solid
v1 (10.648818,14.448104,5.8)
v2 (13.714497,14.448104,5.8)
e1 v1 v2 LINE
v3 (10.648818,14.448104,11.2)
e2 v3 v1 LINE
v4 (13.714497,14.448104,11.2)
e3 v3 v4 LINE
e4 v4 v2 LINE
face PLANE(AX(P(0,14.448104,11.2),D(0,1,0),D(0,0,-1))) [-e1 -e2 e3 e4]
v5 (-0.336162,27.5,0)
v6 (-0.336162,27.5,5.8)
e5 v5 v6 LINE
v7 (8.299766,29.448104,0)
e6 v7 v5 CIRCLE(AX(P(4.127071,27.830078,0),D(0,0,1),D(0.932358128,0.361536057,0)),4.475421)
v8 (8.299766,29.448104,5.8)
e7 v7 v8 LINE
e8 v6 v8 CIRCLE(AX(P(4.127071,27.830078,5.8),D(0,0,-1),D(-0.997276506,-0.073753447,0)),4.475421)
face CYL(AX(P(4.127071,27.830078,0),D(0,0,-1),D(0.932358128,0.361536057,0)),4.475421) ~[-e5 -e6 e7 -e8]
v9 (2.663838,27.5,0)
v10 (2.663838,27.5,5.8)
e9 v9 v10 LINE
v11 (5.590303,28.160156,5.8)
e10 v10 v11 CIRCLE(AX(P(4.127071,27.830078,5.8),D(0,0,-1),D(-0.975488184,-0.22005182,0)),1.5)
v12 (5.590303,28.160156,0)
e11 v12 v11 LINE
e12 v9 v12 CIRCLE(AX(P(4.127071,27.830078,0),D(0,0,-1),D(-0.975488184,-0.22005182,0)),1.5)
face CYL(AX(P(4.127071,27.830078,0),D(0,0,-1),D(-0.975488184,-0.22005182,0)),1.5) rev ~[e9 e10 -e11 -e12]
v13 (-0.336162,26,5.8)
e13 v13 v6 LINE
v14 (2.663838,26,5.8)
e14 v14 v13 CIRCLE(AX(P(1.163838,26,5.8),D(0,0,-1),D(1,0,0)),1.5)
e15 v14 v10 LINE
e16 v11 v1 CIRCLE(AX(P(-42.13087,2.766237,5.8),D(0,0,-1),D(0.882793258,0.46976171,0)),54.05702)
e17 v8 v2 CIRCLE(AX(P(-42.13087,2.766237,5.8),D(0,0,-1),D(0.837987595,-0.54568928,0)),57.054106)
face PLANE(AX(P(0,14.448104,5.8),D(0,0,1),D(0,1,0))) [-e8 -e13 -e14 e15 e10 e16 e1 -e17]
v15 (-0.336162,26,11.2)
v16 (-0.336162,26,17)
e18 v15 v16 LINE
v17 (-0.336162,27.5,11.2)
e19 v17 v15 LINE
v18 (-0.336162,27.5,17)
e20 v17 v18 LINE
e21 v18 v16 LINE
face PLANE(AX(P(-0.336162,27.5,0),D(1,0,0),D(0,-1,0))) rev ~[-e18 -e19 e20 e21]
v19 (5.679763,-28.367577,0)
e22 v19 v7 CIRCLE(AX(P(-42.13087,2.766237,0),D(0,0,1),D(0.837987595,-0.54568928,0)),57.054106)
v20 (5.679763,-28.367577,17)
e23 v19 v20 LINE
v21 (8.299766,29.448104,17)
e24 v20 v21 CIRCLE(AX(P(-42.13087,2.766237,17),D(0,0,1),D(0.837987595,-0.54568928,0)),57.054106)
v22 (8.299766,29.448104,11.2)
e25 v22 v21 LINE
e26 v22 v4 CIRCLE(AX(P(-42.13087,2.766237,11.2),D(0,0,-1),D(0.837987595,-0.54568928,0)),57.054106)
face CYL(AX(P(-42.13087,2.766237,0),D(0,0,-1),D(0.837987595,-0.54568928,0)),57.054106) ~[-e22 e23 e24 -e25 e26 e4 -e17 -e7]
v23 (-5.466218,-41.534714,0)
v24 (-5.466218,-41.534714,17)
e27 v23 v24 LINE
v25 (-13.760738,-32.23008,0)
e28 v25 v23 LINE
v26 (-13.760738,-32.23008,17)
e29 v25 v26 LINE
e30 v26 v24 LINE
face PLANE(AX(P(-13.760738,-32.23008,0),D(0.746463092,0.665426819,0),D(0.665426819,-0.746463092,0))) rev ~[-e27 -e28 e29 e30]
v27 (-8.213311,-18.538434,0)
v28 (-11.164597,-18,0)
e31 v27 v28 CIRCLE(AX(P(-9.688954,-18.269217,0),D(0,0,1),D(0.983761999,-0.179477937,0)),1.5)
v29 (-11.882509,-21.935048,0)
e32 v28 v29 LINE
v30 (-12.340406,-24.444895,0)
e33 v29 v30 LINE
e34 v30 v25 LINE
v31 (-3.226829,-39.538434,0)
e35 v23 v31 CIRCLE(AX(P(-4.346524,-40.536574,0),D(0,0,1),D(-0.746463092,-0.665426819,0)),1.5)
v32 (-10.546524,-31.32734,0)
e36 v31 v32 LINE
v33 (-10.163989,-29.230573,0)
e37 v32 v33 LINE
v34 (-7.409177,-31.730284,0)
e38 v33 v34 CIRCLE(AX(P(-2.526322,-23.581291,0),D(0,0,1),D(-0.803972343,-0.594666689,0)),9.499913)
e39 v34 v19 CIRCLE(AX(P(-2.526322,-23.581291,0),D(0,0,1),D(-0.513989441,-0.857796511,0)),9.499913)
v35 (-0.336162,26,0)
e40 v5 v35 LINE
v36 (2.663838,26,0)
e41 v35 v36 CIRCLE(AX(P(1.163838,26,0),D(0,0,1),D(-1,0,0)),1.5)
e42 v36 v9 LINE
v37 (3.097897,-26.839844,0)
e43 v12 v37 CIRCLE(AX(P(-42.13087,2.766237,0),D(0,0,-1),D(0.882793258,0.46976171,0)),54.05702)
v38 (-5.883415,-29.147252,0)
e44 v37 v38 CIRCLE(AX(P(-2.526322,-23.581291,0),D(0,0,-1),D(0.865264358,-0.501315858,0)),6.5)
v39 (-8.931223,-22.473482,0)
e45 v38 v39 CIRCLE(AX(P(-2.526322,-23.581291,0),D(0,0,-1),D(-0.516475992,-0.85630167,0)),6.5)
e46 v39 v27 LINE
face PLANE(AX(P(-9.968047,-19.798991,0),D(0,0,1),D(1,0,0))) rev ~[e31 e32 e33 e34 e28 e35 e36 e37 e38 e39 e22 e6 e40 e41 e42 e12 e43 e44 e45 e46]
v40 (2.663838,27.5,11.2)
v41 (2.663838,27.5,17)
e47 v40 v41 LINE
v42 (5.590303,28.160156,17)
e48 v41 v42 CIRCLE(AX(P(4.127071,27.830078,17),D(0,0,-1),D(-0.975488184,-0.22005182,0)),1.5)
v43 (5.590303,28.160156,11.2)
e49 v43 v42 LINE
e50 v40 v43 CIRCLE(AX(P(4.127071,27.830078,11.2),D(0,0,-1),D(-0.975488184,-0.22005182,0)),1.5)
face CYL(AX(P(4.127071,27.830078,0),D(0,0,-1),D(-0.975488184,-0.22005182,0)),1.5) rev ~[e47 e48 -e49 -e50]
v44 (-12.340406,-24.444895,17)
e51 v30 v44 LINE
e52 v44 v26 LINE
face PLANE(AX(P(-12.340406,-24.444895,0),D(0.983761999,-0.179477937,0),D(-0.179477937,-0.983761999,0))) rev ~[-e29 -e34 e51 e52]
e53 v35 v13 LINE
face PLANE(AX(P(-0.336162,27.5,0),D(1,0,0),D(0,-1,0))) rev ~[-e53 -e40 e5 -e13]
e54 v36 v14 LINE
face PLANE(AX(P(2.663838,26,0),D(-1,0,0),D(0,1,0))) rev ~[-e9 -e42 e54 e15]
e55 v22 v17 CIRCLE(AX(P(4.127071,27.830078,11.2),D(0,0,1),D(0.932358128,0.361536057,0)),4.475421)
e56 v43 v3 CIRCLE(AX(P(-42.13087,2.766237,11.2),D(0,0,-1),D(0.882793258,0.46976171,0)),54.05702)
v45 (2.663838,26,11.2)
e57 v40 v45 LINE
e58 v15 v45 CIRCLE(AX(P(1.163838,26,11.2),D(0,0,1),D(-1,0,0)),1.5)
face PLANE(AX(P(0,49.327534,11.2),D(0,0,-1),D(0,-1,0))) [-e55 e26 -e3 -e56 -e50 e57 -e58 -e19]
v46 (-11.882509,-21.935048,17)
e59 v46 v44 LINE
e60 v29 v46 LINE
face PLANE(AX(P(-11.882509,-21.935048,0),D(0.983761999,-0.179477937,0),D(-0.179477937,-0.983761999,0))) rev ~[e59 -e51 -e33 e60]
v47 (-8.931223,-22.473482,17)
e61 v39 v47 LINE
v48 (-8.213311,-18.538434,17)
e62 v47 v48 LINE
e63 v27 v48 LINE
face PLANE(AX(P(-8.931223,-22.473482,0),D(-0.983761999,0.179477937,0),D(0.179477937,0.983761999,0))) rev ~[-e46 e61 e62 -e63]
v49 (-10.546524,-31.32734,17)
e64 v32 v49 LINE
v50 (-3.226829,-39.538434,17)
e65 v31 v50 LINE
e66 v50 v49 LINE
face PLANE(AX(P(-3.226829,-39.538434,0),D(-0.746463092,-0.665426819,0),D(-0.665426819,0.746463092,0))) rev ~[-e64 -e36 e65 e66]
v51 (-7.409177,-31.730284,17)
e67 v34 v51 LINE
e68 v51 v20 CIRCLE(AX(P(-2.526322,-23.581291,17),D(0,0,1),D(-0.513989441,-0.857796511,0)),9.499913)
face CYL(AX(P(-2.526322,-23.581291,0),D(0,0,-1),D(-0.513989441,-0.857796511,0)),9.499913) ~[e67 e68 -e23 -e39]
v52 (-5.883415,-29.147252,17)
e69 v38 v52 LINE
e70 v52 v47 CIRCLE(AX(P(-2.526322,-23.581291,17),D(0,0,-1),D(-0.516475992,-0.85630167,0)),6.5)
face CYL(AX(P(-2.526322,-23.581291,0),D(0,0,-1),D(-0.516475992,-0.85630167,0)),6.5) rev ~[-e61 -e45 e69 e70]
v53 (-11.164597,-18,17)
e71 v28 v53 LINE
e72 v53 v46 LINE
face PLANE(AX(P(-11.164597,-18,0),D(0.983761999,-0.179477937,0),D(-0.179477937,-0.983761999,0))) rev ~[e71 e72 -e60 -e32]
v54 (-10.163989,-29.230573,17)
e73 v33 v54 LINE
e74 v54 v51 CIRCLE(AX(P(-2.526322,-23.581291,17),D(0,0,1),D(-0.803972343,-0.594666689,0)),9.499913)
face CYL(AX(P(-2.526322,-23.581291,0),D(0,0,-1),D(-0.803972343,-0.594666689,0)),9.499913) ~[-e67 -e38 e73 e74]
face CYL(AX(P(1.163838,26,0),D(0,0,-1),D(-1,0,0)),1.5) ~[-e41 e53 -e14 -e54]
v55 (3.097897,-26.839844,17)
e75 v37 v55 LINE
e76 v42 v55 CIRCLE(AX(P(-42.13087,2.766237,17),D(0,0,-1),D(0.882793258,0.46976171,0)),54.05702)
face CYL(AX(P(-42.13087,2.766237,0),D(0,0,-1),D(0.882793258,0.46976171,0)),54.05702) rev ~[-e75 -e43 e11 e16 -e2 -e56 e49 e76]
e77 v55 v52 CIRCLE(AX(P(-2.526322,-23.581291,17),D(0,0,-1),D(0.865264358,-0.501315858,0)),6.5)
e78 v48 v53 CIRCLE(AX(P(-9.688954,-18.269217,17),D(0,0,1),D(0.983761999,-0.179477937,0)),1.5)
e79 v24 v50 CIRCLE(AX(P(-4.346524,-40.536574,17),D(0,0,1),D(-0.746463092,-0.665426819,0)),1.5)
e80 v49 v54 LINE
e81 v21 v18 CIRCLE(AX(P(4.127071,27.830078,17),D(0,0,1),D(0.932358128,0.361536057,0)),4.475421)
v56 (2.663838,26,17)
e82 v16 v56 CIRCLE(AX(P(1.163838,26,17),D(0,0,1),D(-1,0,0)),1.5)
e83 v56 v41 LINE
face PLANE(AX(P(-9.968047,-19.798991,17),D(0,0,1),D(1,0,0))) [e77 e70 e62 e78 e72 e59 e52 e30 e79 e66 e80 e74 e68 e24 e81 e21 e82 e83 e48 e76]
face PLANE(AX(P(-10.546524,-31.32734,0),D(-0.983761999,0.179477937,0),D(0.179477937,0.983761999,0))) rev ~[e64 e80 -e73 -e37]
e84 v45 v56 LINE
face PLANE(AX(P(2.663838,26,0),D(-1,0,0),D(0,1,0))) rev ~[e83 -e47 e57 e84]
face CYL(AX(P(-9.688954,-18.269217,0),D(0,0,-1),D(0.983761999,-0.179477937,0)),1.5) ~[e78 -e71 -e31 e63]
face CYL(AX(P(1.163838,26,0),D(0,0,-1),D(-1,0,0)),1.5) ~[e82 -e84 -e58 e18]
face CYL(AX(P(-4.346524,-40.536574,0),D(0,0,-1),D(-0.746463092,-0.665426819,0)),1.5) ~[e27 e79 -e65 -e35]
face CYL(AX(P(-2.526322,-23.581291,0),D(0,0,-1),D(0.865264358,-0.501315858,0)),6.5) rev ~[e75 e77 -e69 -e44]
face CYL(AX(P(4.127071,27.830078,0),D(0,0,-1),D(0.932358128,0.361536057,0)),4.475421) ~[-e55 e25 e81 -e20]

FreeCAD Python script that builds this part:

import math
import FreeCAD as App
import Part
import Sketcher

doc = App.newDocument("Part")
body = doc.addObject("PartDesign::Body", "Body")

sketch1 = body.newObject("Sketcher::SketchObject", "Sketch")
sketch1.AttachmentSupport = (doc.getObject("XY_Plane"), [""])
sketch1.MapMode = "FlatFace"
sketch1.addGeometry(Part.LineSegment(App.Vector(-8.9, -22.5, 0), App.Vector(-8.2, -18.5, 0)), False)
sketch1.addGeometry(Part.ArcOfCircle(Part.Circle(App.Vector(-9.7, -18.3, 0), App.Vector(0, 0, 1), 1.5), math.radians(-10), math.radians(170)), False)
sketch1.addGeometry(Part.LineSegment(App.Vector(-11.2, -18, 0), App.Vector(-11.9, -21.9, 0)), False)
sketch1.addGeometry(Part.LineSegment(App.Vector(-11.9, -21.9, 0), App.Vector(-12.3, -24.4, 0)), False)
sketch1.addGeometry(Part.LineSegment(App.Vector(-12.3, -24.4, 0), App.Vector(-13.8, -32.2, 0)), False)
sketch1.addGeometry(Part.LineSegment(App.Vector(-13.8, -32.2, 0), App.Vector(-5.5, -41.5, 0)), False)
sketch1.addGeometry(Part.ArcOfCircle(Part.Circle(App.Vector(-4.3, -40.5, 0), App.Vector(0, 0, 1), 1.5), math.radians(-138), math.radians(42)), False)
sketch1.addGeometry(Part.LineSegment(App.Vector(-3.2, -39.5, 0), App.Vector(-10.5, -31.3, 0)), False)
sketch1.addGeometry(Part.LineSegment(App.Vector(-10.5, -31.3, 0), App.Vector(-10.2, -29.2, 0)), False)
sketch1.addGeometry(Part.ArcOfCircle(Part.Circle(App.Vector(-2.5, -23.6, 0), App.Vector(0, 0, 1), 9.5), math.radians(-144), math.radians(-121)), False)
sketch1.addGeometry(Part.ArcOfCircle(Part.Circle(App.Vector(-2.5, -23.6, 0), App.Vector(0, 0, 1), 9.5), math.radians(-121), math.radians(-30)), False)
sketch1.addGeometry(Part.ArcOfCircle(Part.Circle(App.Vector(-42.1, 2.8, 0), App.Vector(0, 0, 1), 57.1), math.radians(-33), math.radians(28)), False)
sketch1.addGeometry(Part.ArcOfCircle(Part.Circle(App.Vector(4.1, 27.8, 0), App.Vector(0, 0, 1), 4.5), math.radians(21), math.radians(184)), False)
sketch1.addGeometry(Part.LineSegment(App.Vector(-0.3, 27.5, 0), App.Vector(-0.3, 26, 0)), False)
sketch1.addGeometry(Part.ArcOfCircle(Part.Circle(App.Vector(1.2, 26, 0), App.Vector(0, 0, 1), 1.5), math.radians(180), math.radians(360)), False)
sketch1.addGeometry(Part.LineSegment(App.Vector(2.7, 26, 0), App.Vector(2.7, 27.5, 0)), False)
sketch1.addGeometry(Part.ArcOfCircle(Part.Circle(App.Vector(4.1, 27.8, 0), App.Vector(0, 0, 1), 1.5), math.radians(13), math.radians(193)), False)
sketch1.addGeometry(Part.ArcOfCircle(Part.Circle(App.Vector(-42.1, 2.8, 0), App.Vector(0, 0, 1), 54.1), math.radians(-33), math.radians(28)), False)
sketch1.addGeometry(Part.ArcOfCircle(Part.Circle(App.Vector(-2.5, -23.6, 0), App.Vector(0, 0, 1), 6.5), math.radians(-121), math.radians(-30)), False)
sketch1.addGeometry(Part.ArcOfCircle(Part.Circle(App.Vector(-2.5, -23.6, 0), App.Vector(0, 0, 1), 6.5), math.radians(170), math.radians(239)), False)
sketch1.addConstraint(Sketcher.Constraint("Tangent", 0, 2, 1, 1))
sketch1.addConstraint(Sketcher.Constraint("Tangent", 1, 2, 2, 1))
sketch1.addConstraint(Sketcher.Constraint("Coincident", 2, 2, 3, 1))
sketch1.addConstraint(Sketcher.Constraint("Coincident", 3, 2, 4, 1))
sketch1.addConstraint(Sketcher.Constraint("Coincident", 4, 2, 5, 1))
sketch1.addConstraint(Sketcher.Constraint("Tangent", 5, 2, 6, 1))
sketch1.addConstraint(Sketcher.Constraint("Tangent", 6, 2, 7, 1))
sketch1.addConstraint(Sketcher.Constraint("Coincident", 7, 2, 8, 1))
sketch1.addConstraint(Sketcher.Constraint("Coincident", 8, 2, 9, 1))
sketch1.addConstraint(Sketcher.Constraint("Tangent", 9, 2, 10, 1))
sketch1.addConstraint(Sketcher.Constraint("Coincident", 10, 2, 11, 1))
sketch1.addConstraint(Sketcher.Constraint("Coincident", 11, 2, 12, 1))
sketch1.addConstraint(Sketcher.Constraint("Coincident", 12, 2, 13, 1))
sketch1.addConstraint(Sketcher.Constraint("Tangent", 13, 2, 14, 1))
sketch1.addConstraint(Sketcher.Constraint("Tangent", 14, 2, 15, 1))
sketch1.addConstraint(Sketcher.Constraint("Coincident", 15, 2, 16, 2))
sketch1.addConstraint(Sketcher.Constraint("Coincident", 16, 1, 17, 2))
sketch1.addConstraint(Sketcher.Constraint("Coincident", 17, 1, 18, 2))
sketch1.addConstraint(Sketcher.Constraint("Tangent", 18, 1, 19, 2))
sketch1.addConstraint(Sketcher.Constraint("Coincident", 19, 1, 0, 1))
sketch1.addConstraint(Sketcher.Constraint("Vertical", 13))
sketch1.addConstraint(Sketcher.Constraint("Vertical", 15))
sketch1.addConstraint(Sketcher.Constraint("Coincident", 16, 3, 12, 3))
sketch1.addConstraint(Sketcher.Constraint("Coincident", 17, 3, 11, 3))
sketch1.addConstraint(Sketcher.Constraint("Coincident", 18, 3, 9, 3))
sketch1.addConstraint(Sketcher.Constraint("Equal", 1, 6))
sketch1.addConstraint(Sketcher.Constraint("Equal", 9, 10))
sketch1.addConstraint(Sketcher.Constraint("Equal", 6, 14))
sketch1.addConstraint(Sketcher.Constraint("Equal", 14, 16))
sketch1.addConstraint(Sketcher.Constraint("Equal", 18, 19))
sketch1.addConstraint(Sketcher.Constraint("Parallel", 0, 2))
sketch1.addConstraint(Sketcher.Constraint("Parallel", 2, 3))
sketch1.addConstraint(Sketcher.Constraint("Parallel", 3, 4))
sketch1.addConstraint(Sketcher.Constraint("Parallel", 5, 7))
sketch1.addConstraint(Sketcher.Constraint("Parallel", 4, 8))
sketch1.addConstraint(Sketcher.Constraint("Horizontal", 12, 2, 15, 2))
sketch1.addConstraint(Sketcher.Constraint("Equal", 0, 2))
sketch1.addConstraint(Sketcher.Constraint("Radius", 1, 1.5))
sketch1.addConstraint(Sketcher.Constraint("Radius", 18, 6.5))
sketch1.addConstraint(Sketcher.Constraint("Distance", 0, 4.0))
sketch1.addConstraint(Sketcher.Constraint("Distance", 7, 11.0))
sketch1.addConstraint(Sketcher.Constraint("DistanceY", 13, 2, 13, 1, 1.5))
sketch1.addConstraint(Sketcher.Constraint("DistanceY", -1, 1, 14, 3, 26.0))
sketch1.addConstraint(Sketcher.Constraint("DistanceY", 1, 2, -1, 1, 18.0))
sketch1.addConstraint(Sketcher.Constraint("DistanceX", 7, 2, 6, 3, 6.2))
sketch1.addConstraint(Sketcher.Constraint("Radius", 12, 4.475421))
sketch1.addConstraint(Sketcher.Constraint("Radius", 17, 54.05702))
sketch1.addConstraint(Sketcher.Constraint("Radius", 9, 9.499913))
sketch1.addConstraint(Sketcher.Constraint("Radius", 11, 57.054106))
sketch1.addConstraint(Sketcher.Constraint("DistanceX", 9, 3, -1, 1, 2.526322))
sketch1.addConstraint(Sketcher.Constraint("DistanceY", 9, 3, -1, 1, 23.581291))
sketch1.addConstraint(Sketcher.Constraint("DistanceX", 11, 3, -1, 1, 42.13087))
sketch1.addConstraint(Sketcher.Constraint("DistanceX", -1, 1, 12, 3, 4.127071))
sketch1.addConstraint(Sketcher.Constraint("DistanceX", 0, 2, -1, 1, 8.213311))
sketch1.addConstraint(Sketcher.Constraint("DistanceX", 4, 2, -1, 1, 13.760738))
sketch1.addConstraint(Sketcher.Constraint("DistanceX", 5, 2, -1, 1, 5.466218))
sketch1.addConstraint(Sketcher.Constraint("DistanceY", 9, 3, 11, 3, 26.347529))
sketch1.addConstraint(Sketcher.Constraint("DistanceX", 3, 2, 1, 2, 1.175809))
sketch1.addConstraint(Sketcher.Constraint("DistanceY", 9, 2, 8, 2, 2.499711))
sketch1.addConstraint(Sketcher.Constraint("DistanceX", 9, 2, 18, 1, 1.525761))
pad1 = body.newObject("PartDesign::Pad", "Pad")
pad1.Profile = sketch1
pad1.Length = 17

sketch2 = body.newObject("Sketcher::SketchObject", "Sketch001")
sketch2.AttachmentSupport = (doc.getObject("YZ_Plane"), [""])
sketch2.MapMode = "FlatFace"
sketch2.addGeometry(Part.LineSegment(App.Vector(49, 11, 0), App.Vector(14, 11, 0)), False)
sketch2.addGeometry(Part.LineSegment(App.Vector(14, 11, 0), App.Vector(14, 6, 0)), False)
sketch2.addGeometry(Part.LineSegment(App.Vector(14, 6, 0), App.Vector(49, 6, 0)), False)
sketch2.addGeometry(Part.LineSegment(App.Vector(49, 6, 0), App.Vector(49, 11, 0)), False)
sketch2.addConstraint(Sketcher.Constraint("Coincident", 0, 2, 1, 1))
sketch2.addConstraint(Sketcher.Constraint("Coincident", 1, 2, 2, 1))
sketch2.addConstraint(Sketcher.Constraint("Coincident", 2, 2, 3, 1))
sketch2.addConstraint(Sketcher.Constraint("Coincident", 3, 2, 0, 1))
sketch2.addConstraint(Sketcher.Constraint("Horizontal", 0))
sketch2.addConstraint(Sketcher.Constraint("Vertical", 1))
sketch2.addConstraint(Sketcher.Constraint("Horizontal", 2))
sketch2.addConstraint(Sketcher.Constraint("Vertical", 3))
sketch2.addConstraint(Sketcher.Constraint("DistanceY", 1, 2, 1, 1, 5.4))
sketch2.addConstraint(Sketcher.Constraint("DistanceY", -1, 1, 0, 2, 11.2))
sketch2.addConstraint(Sketcher.Constraint("DistanceX", 0, 2, 0, 1, 34.87943))
sketch2.addConstraint(Sketcher.Constraint("DistanceX", -1, 1, 0, 2, 14.448104))
pocket1 = body.newObject("PartDesign::Pocket", "Pocket")
pocket1.Profile = sketch2
pocket1.Type = "ThroughAll"
pocket1.Midplane = True

doc.recompute()
